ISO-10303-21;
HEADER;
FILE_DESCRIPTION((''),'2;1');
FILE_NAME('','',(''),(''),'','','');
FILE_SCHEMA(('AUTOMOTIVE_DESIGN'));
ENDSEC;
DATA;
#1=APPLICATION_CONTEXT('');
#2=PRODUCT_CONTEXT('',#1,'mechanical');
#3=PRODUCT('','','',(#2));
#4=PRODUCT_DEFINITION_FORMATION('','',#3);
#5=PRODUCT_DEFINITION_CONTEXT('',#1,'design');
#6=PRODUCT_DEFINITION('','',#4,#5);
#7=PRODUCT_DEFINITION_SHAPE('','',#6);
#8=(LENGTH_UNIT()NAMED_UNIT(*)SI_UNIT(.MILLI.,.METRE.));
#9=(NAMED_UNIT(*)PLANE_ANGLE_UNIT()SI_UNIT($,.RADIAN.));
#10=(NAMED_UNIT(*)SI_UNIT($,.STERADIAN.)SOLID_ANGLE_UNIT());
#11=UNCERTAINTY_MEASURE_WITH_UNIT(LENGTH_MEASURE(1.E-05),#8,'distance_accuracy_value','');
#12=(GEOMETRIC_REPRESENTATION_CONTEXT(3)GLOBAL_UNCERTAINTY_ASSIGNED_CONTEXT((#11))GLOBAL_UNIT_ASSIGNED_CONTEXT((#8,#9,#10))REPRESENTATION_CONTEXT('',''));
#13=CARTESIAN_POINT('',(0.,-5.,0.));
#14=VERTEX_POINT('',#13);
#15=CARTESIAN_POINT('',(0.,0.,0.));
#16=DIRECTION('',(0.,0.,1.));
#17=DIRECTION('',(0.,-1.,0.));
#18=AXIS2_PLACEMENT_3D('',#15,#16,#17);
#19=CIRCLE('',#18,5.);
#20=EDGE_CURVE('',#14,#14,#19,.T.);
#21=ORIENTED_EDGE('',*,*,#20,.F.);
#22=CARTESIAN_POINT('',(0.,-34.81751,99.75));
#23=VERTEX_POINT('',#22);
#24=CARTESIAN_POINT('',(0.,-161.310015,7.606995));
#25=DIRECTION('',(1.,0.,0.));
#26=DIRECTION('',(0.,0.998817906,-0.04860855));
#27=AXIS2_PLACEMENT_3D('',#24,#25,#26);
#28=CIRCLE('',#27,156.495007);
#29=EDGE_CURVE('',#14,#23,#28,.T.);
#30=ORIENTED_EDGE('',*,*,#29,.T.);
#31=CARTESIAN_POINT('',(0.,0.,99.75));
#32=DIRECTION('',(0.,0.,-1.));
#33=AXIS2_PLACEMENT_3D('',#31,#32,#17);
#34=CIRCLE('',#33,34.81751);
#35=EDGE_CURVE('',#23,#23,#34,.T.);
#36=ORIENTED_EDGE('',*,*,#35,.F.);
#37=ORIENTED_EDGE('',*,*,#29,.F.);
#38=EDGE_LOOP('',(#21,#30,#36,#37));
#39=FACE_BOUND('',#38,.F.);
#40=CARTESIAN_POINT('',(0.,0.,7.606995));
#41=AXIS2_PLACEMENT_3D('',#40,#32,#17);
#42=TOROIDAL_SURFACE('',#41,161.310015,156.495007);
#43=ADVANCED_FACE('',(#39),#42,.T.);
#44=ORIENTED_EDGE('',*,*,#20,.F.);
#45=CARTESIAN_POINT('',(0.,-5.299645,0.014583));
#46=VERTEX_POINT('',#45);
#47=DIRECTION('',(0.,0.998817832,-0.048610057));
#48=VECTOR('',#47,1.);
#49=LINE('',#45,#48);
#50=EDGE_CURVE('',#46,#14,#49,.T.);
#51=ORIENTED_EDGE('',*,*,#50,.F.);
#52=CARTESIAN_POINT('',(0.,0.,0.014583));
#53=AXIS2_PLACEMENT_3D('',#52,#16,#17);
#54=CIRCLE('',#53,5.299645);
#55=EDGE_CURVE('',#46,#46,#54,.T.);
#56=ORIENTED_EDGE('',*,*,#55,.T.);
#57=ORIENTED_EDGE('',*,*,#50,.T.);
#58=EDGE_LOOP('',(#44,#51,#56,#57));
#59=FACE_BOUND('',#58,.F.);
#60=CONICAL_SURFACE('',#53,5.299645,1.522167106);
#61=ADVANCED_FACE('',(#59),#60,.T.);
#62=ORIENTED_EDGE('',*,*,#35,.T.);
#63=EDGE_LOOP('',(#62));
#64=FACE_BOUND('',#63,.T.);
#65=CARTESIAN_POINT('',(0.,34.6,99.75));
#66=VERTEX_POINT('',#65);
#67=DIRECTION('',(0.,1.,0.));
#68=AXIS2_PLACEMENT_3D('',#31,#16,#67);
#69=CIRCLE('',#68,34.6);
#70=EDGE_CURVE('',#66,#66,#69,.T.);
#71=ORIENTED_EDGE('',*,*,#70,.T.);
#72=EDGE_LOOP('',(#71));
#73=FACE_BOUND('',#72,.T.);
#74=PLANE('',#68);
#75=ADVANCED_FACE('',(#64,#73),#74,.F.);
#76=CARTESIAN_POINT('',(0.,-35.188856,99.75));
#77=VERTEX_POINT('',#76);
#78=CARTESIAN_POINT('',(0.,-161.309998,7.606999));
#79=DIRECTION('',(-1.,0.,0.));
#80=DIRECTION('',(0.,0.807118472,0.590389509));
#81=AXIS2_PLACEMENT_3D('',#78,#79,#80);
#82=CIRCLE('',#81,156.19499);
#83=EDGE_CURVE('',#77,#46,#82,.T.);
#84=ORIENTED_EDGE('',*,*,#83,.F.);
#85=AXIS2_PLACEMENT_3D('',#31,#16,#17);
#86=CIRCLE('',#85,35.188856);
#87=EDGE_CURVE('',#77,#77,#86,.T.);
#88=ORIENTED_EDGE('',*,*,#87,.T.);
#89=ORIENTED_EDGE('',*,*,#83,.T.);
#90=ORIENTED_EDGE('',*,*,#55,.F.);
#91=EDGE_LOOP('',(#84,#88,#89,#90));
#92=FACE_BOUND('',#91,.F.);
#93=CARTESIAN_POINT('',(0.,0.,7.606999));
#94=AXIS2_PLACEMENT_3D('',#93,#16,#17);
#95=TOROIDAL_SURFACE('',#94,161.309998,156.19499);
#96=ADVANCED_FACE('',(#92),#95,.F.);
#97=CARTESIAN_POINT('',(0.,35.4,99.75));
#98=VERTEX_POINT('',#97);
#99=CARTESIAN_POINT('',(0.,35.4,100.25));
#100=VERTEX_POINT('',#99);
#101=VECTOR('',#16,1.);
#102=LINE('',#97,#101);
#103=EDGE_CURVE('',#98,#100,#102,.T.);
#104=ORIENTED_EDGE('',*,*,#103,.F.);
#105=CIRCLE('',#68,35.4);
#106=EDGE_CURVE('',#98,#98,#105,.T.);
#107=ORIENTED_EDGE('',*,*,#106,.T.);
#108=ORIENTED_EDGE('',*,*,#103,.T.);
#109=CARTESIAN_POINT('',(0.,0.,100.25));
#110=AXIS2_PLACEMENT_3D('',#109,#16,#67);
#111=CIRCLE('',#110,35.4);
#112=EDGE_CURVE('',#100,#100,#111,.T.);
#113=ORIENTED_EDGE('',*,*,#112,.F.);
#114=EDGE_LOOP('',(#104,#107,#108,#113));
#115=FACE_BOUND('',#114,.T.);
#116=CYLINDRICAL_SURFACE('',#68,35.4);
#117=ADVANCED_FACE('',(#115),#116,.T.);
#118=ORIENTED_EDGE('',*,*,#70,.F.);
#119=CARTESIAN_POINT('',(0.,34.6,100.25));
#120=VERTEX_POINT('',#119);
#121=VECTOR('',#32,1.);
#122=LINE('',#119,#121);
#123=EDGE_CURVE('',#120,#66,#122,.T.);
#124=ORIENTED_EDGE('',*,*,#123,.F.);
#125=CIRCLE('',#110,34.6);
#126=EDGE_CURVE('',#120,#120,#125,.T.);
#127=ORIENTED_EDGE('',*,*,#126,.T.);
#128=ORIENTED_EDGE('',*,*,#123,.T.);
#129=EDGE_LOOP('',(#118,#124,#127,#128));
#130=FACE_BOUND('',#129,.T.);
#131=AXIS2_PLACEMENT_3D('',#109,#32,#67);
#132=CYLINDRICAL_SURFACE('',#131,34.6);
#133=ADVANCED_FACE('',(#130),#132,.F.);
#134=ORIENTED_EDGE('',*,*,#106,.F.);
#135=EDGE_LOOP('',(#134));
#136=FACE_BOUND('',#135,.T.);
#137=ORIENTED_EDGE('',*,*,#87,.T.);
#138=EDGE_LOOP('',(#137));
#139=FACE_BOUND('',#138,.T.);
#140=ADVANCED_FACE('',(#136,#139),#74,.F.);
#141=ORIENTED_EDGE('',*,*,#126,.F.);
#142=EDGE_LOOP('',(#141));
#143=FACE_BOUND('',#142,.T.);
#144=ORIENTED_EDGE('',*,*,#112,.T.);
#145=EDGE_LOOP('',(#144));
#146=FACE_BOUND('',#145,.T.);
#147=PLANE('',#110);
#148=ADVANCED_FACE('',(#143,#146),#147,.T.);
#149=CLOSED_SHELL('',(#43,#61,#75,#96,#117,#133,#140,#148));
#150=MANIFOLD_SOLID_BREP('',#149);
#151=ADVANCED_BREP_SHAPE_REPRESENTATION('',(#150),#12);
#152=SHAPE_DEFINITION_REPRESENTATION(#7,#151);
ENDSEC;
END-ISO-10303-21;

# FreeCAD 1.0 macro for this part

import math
import FreeCAD as App
import Part
import Sketcher
Q = App.Units.Quantity

doc = App.newDocument("Part")
body = doc.addObject("PartDesign::Body", "Body")

sketch1 = doc.addObject("Sketcher::SketchObject", "Sketch")
body.addObject(sketch1)
sketch1.AttachmentSupport = (doc.YZ_Plane, [""])
sketch1.MapMode = "FlatFace"
sketch1.addGeometry([
    Part.LineSegment(App.Vector(-5.3, 0.01, 0), App.Vector(-5, 0, 0)),
    Part.ArcOfCircle(Part.Circle(App.Vector(-161.31, 7.61, 0), App.Vector(0, 0, 1), 156.5), math.radians(-3), math.radians(36)),
    Part.LineSegment(App.Vector(-35, 100, 0), App.Vector(-35.24, 99.82, 0)),
    Part.ArcOfCircle(Part.Circle(App.Vector(-161.31, 7.61, 0), App.Vector(0, 0, 1), 156.19), math.radians(-3), math.radians(36)),
], False)
sketch1.addConstraint([
    Sketcher.Constraint("Coincident", 0, 2, 1, 1),
    Sketcher.Constraint("Coincident", 1, 2, 2, 1),
    Sketcher.Constraint("Coincident", 2, 2, 3, 2),
    Sketcher.Constraint("Coincident", 3, 1, 0, 1),
    Sketcher.Constraint("PointOnObject", 0, 2, -1),
    Sketcher.Constraint("Equal", 0, 2),
    Sketcher.Constraint("DistanceX", 0, 2, -1, 1, Q("5 mm")),
    Sketcher.Constraint("DistanceX", 1, 2, -1, 1, Q("35 mm")),
    Sketcher.Constraint("DistanceY", -1, 1, 1, 2, Q("100 mm")),
    Sketcher.Constraint("Distance", 0, Q("0.3 mm")),
    Sketcher.Constraint("DistanceX", 3, 3, -1, 1, Q("161.309998 mm")),
    Sketcher.Constraint("Radius", 1, Q("156.495007 mm")),
    Sketcher.Constraint("DistanceY", 3, 1, 2, 2, Q("99.8083 mm")),
    Sketcher.Constraint("DistanceX", 1, 3, 2, 2, Q("126.067879 mm")),
])
revolution = doc.addObject("PartDesign::Revolution", "Revolution")
body.addObject(revolution)
revolution.Profile = sketch1
revolution.ReferenceAxis = (sketch1, ["V_Axis"])
revolution.Angle = 360

sketch2 = doc.addObject("Sketcher::SketchObject", "Sketch001")
body.addObject(sketch2)
sketch2.AttachmentSupport = (doc.YZ_Plane, [""])
sketch2.MapMode = "FlatFace"
sketch2.addGeometry([
    Part.LineSegment(App.Vector(34.6, 100.2, 0), App.Vector(34.6, 99.8, 0)),
    Part.LineSegment(App.Vector(34.6, 99.8, 0), App.Vector(35.4, 99.8, 0)),
    Part.LineSegment(App.Vector(35.4, 99.8, 0), App.Vector(35.4, 100.2, 0)),
    Part.LineSegment(App.Vector(35.4, 100.2, 0), App.Vector(34.6, 100.2, 0)),
], False)
sketch2.addConstraint([
    Sketcher.Constraint("Coincident", 0, 2, 1, 1),
    Sketcher.Constraint("Coincident", 1, 2, 2, 1),
    Sketcher.Constraint("Coincident", 2, 2, 3, 1),
    Sketcher.Constraint("Coincident", 3, 2, 0, 1),
    Sketcher.Constraint("Vertical", 0),
    Sketcher.Constraint("Horizontal", 1),
    Sketcher.Constraint("Vertical", 2),
    Sketcher.Constraint("Horizontal", 3),
    Sketcher.Constraint("DistanceX", 1, 1, 1, 2, Q("0.8 mm")),
    Sketcher.Constraint("DistanceY", 0, 2, 0, 1, Q("0.5 mm")),
    Sketcher.Constraint("DistanceX", -1, 1, 0, 2, Q("34.6 mm")),
    Sketcher.Constraint("DistanceY", -1, 1, 0, 2, Q("99.75 mm")),
])
revolution2 = doc.addObject("PartDesign::Revolution", "Revolution001")
body.addObject(revolution2)
revolution2.Profile = sketch2
revolution2.ReferenceAxis = (sketch2, ["V_Axis"])
revolution2.Angle = 360

doc.recompute()
